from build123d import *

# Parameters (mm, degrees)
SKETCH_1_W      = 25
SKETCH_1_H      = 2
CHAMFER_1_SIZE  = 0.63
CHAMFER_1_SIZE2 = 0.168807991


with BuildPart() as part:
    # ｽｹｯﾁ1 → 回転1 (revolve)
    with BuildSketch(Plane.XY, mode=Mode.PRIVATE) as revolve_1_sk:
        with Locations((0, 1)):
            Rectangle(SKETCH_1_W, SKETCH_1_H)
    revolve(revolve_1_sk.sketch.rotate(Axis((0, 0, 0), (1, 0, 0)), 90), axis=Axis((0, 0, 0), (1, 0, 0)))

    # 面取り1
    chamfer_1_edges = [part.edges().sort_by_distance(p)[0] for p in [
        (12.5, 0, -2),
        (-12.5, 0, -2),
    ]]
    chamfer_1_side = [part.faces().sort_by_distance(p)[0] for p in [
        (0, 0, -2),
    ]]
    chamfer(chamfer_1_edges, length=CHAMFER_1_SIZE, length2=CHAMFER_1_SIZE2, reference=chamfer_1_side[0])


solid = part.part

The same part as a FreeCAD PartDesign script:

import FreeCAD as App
import Part
import Sketcher
from FreeCAD import Vector
Q = App.Units.Quantity


def edges_at(feature, points):
    """Names of the edges that pass closest to the given points."""
    edges = feature.Shape.Edges
    near = lambda p: min(range(len(edges)), key=lambda i: edges[i].distToShape(Part.Vertex(*p))[0])
    return sorted({f"Edge{near(p) + 1}" for p in points})


def add_polygon(sketch, points):
    """Adds a closed chain of lines whose ends are joined by coincident constraints."""
    first, n = sketch.GeometryCount, len(points)
    for a, b in zip(points, points[1:] + points[:1]):
        sketch.addGeometry(Part.LineSegment(App.Vector(*a, 0), App.Vector(*b, 0)), False)
    for i in range(n):
        sketch.addConstraint(Sketcher.Constraint("Coincident", first + i, 2, first + (i + 1) % n, 1))

doc = App.newDocument("Part")
body = doc.addObject("PartDesign::Body", "Body")

# Sketch on XY plane
sketch1 = body.newObject("Sketcher::SketchObject", "Sketch")
sketch1.AttachmentSupport = (doc.getObject("XY_Plane"), [""])
sketch1.MapMode = "FlatFace"
add_polygon(sketch1, [(-12.5, 2), (-12.5, 0), (12.5, 0), (12.5, 2)])  # lines 0-3
sketch1.addConstraint(Sketcher.Constraint("Vertical", 0))
sketch1.addConstraint(Sketcher.Constraint("Horizontal", 1))
sketch1.addConstraint(Sketcher.Constraint("Vertical", 2))
sketch1.addConstraint(Sketcher.Constraint("Horizontal", 3))
sketch1.addConstraint(Sketcher.Constraint("Symmetric", 0, 2, 1, 2, -1, 1))
sketch1.addConstraint(Sketcher.Constraint("DistanceX", 1, 1, 1, 2, Q("25 mm")))
sketch1.addConstraint(Sketcher.Constraint("DistanceY", 0, 2, 0, 1, Q("2 mm")))
revolution = body.newObject("PartDesign::Revolution", "Revolution")
revolution.Profile = sketch1
revolution.ReferenceAxis = (sketch1, ["H_Axis"])
revolution.Angle = 360
doc.recompute()

chamfer = body.newObject("PartDesign::Chamfer", "Chamfer")
chamfer.Base = (revolution, edges_at(revolution, [(12.5, 0, -2), (-12.5, 0, -2)]))
chamfer.ChamferType = "Two distances"
chamfer.Size = 0.63
chamfer.Size2 = 0.168808
chamfer.FlipDirection = True

doc.recompute()
